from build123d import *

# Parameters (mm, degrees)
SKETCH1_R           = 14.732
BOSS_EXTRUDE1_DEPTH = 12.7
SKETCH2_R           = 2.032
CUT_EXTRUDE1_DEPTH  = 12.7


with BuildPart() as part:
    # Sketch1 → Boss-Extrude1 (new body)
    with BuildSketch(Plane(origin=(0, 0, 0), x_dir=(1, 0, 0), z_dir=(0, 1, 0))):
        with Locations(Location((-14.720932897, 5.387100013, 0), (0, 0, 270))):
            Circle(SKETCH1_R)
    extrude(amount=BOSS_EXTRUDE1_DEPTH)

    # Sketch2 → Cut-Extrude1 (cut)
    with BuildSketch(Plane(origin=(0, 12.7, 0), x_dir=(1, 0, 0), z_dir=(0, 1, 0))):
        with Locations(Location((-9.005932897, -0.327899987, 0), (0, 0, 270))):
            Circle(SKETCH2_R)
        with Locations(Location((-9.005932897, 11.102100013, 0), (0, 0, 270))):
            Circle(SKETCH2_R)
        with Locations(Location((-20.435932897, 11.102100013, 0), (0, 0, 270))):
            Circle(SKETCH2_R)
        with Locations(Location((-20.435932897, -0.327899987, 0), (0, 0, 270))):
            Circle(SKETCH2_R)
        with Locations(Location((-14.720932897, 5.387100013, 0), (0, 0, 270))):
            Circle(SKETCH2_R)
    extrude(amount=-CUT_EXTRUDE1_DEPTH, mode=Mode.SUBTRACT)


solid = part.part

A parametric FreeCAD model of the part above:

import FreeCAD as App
import Part
import Sketcher

V = App.Vector
Q = App.Units.Quantity

doc = App.newDocument("Part")
body = doc.addObject("PartDesign::Body", "Body")

# Sketch on XZ plane
sketch1 = body.newObject("Sketcher::SketchObject", "Sketch")
sketch1.AttachmentSupport = (doc.getObject("XZ_Plane"), [""])
sketch1.MapMode = "FlatFace"
sketch1.addGeometry(Part.Circle(V(-15, -5, 0), V(0, 0, 1), 15), False)
sketch1.addConstraint([
    Sketcher.Constraint("Diameter", 0, Q("1.16 in")),
    Sketcher.Constraint("DistanceY", 0, 3, -1, 1, Q("5.3871 mm")),
    Sketcher.Constraint("DistanceX", 0, 3, -1, 1, Q("14.720933 mm")),
])
pad1 = body.newObject("PartDesign::Pad", "Pad")
pad1.Profile = sketch1
pad1.Length = Q("0.5 in")
pad1.Reversed = True

# Sketch on XZ plane
sketch2 = body.newObject("Sketcher::SketchObject", "Sketch001")
sketch2.AttachmentSupport = (doc.getObject("XZ_Plane"), [""])
sketch2.MapMode = "FlatFace"
sketch2.AttachmentOffset = App.Placement(V(0, 0, -0.5 * 25.4), App.Rotation())
sketch2.addGeometry([
    Part.Circle(V(-9, 0.3, 0), V(0, 0, 1), 2),  # 0
    Part.Circle(V(-9, -11.1, 0), V(0, 0, 1), 2),  # 1
    Part.Circle(V(-20.4, -11.1, 0), V(0, 0, 1), 2),  # 2
    Part.Circle(V(-20.4, 0.3, 0), V(0, 0, 1), 2),  # 3
    Part.Circle(V(-14.7, -5.4, 0), V(0, 0, 1), 2),  # 4
], False)
sketch2.addConstraint([
    Sketcher.Constraint("Equal", 0, 1),
    Sketcher.Constraint("Equal", 1, 2),
    Sketcher.Constraint("Equal", 2, 3),
    Sketcher.Constraint("Equal", 3, 4),
    Sketcher.Constraint("Horizontal", 1, 3, 2, 3),
    Sketcher.Constraint("Horizontal", 0, 3, 3, 3),
    Sketcher.Constraint("Vertical", 0, 3, 1, 3),
    Sketcher.Constraint("Vertical", 2, 3, 3, 3),
    Sketcher.Constraint("Diameter", 0, Q("0.16 in")),
    Sketcher.Constraint("DistanceY", 1, 3, 0, 3, Q("0.45 in")),
    Sketcher.Constraint("DistanceX", 2, 3, 1, 3, Q("0.45 in")),
    Sketcher.Constraint("DistanceX", 2, 3, 4, 3, Q("0.225 in")),
    Sketcher.Constraint("DistanceY", 2, 3, 4, 3, Q("0.225 in")),
    Sketcher.Constraint("DistanceY", -1, 1, 0, 3, Q("0.3279 mm")),
    Sketcher.Constraint("DistanceX", 0, 3, -1, 1, Q("9.005933 mm")),
])
pocket1 = body.newObject("PartDesign::Pocket", "Pocket")
pocket1.Profile = sketch2
pocket1.Length = Q("0.5 in")
pocket1.Reversed = True

doc.recompute()
